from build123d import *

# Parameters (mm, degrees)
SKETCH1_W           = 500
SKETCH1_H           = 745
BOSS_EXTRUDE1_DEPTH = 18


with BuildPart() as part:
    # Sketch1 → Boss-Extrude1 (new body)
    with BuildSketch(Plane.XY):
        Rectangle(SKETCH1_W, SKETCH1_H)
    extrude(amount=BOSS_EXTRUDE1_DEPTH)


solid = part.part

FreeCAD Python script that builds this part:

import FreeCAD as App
import Part
import Sketcher

V = App.Vector

doc = App.newDocument("Part")
body = doc.addObject("PartDesign::Body", "Body")

# Sketch on XY plane
sketch1 = body.newObject("Sketcher::SketchObject", "Sketch")
sketch1.AttachmentSupport = (doc.getObject("XY_Plane"), [""])
sketch1.MapMode = "FlatFace"
sketch1.addGeometry(Part.LineSegment(V(-250, 372, 0), V(-250, -372, 0)), False)
sketch1.addGeometry(Part.LineSegment(V(-250, -372, 0), V(250, -372, 0)), False)
sketch1.addGeometry(Part.LineSegment(V(250, -372, 0), V(250, 372, 0)), False)
sketch1.addGeometry(Part.LineSegment(V(250, 372, 0), V(-250, 372, 0)), False)
sketch1.addConstraint(Sketcher.Constraint("Coincident", 0, 2, 1, 1))
sketch1.addConstraint(Sketcher.Constraint("Coincident", 1, 2, 2, 1))
sketch1.addConstraint(Sketcher.Constraint("Coincident", 2, 2, 3, 1))
sketch1.addConstraint(Sketcher.Constraint("Coincident", 3, 2, 0, 1))
sketch1.addConstraint(Sketcher.Constraint("Vertical", 0))
sketch1.addConstraint(Sketcher.Constraint("Horizontal", 1))
sketch1.addConstraint(Sketcher.Constraint("Vertical", 2))
sketch1.addConstraint(Sketcher.Constraint("Horizontal", 3))
sketch1.addConstraint(Sketcher.Constraint("Symmetric", 0, 2, 2, 2, -1, 1))
sketch1.addConstraint(Sketcher.Constraint("DistanceX", 1, 1, 1, 2, 500.0))
sketch1.addConstraint(Sketcher.Constraint("DistanceY", 0, 2, 0, 1, 745.0))
pad1 = body.newObject("PartDesign::Pad", "Pad")
pad1.Profile = sketch1
pad1.Length = 18

doc.recompute()
